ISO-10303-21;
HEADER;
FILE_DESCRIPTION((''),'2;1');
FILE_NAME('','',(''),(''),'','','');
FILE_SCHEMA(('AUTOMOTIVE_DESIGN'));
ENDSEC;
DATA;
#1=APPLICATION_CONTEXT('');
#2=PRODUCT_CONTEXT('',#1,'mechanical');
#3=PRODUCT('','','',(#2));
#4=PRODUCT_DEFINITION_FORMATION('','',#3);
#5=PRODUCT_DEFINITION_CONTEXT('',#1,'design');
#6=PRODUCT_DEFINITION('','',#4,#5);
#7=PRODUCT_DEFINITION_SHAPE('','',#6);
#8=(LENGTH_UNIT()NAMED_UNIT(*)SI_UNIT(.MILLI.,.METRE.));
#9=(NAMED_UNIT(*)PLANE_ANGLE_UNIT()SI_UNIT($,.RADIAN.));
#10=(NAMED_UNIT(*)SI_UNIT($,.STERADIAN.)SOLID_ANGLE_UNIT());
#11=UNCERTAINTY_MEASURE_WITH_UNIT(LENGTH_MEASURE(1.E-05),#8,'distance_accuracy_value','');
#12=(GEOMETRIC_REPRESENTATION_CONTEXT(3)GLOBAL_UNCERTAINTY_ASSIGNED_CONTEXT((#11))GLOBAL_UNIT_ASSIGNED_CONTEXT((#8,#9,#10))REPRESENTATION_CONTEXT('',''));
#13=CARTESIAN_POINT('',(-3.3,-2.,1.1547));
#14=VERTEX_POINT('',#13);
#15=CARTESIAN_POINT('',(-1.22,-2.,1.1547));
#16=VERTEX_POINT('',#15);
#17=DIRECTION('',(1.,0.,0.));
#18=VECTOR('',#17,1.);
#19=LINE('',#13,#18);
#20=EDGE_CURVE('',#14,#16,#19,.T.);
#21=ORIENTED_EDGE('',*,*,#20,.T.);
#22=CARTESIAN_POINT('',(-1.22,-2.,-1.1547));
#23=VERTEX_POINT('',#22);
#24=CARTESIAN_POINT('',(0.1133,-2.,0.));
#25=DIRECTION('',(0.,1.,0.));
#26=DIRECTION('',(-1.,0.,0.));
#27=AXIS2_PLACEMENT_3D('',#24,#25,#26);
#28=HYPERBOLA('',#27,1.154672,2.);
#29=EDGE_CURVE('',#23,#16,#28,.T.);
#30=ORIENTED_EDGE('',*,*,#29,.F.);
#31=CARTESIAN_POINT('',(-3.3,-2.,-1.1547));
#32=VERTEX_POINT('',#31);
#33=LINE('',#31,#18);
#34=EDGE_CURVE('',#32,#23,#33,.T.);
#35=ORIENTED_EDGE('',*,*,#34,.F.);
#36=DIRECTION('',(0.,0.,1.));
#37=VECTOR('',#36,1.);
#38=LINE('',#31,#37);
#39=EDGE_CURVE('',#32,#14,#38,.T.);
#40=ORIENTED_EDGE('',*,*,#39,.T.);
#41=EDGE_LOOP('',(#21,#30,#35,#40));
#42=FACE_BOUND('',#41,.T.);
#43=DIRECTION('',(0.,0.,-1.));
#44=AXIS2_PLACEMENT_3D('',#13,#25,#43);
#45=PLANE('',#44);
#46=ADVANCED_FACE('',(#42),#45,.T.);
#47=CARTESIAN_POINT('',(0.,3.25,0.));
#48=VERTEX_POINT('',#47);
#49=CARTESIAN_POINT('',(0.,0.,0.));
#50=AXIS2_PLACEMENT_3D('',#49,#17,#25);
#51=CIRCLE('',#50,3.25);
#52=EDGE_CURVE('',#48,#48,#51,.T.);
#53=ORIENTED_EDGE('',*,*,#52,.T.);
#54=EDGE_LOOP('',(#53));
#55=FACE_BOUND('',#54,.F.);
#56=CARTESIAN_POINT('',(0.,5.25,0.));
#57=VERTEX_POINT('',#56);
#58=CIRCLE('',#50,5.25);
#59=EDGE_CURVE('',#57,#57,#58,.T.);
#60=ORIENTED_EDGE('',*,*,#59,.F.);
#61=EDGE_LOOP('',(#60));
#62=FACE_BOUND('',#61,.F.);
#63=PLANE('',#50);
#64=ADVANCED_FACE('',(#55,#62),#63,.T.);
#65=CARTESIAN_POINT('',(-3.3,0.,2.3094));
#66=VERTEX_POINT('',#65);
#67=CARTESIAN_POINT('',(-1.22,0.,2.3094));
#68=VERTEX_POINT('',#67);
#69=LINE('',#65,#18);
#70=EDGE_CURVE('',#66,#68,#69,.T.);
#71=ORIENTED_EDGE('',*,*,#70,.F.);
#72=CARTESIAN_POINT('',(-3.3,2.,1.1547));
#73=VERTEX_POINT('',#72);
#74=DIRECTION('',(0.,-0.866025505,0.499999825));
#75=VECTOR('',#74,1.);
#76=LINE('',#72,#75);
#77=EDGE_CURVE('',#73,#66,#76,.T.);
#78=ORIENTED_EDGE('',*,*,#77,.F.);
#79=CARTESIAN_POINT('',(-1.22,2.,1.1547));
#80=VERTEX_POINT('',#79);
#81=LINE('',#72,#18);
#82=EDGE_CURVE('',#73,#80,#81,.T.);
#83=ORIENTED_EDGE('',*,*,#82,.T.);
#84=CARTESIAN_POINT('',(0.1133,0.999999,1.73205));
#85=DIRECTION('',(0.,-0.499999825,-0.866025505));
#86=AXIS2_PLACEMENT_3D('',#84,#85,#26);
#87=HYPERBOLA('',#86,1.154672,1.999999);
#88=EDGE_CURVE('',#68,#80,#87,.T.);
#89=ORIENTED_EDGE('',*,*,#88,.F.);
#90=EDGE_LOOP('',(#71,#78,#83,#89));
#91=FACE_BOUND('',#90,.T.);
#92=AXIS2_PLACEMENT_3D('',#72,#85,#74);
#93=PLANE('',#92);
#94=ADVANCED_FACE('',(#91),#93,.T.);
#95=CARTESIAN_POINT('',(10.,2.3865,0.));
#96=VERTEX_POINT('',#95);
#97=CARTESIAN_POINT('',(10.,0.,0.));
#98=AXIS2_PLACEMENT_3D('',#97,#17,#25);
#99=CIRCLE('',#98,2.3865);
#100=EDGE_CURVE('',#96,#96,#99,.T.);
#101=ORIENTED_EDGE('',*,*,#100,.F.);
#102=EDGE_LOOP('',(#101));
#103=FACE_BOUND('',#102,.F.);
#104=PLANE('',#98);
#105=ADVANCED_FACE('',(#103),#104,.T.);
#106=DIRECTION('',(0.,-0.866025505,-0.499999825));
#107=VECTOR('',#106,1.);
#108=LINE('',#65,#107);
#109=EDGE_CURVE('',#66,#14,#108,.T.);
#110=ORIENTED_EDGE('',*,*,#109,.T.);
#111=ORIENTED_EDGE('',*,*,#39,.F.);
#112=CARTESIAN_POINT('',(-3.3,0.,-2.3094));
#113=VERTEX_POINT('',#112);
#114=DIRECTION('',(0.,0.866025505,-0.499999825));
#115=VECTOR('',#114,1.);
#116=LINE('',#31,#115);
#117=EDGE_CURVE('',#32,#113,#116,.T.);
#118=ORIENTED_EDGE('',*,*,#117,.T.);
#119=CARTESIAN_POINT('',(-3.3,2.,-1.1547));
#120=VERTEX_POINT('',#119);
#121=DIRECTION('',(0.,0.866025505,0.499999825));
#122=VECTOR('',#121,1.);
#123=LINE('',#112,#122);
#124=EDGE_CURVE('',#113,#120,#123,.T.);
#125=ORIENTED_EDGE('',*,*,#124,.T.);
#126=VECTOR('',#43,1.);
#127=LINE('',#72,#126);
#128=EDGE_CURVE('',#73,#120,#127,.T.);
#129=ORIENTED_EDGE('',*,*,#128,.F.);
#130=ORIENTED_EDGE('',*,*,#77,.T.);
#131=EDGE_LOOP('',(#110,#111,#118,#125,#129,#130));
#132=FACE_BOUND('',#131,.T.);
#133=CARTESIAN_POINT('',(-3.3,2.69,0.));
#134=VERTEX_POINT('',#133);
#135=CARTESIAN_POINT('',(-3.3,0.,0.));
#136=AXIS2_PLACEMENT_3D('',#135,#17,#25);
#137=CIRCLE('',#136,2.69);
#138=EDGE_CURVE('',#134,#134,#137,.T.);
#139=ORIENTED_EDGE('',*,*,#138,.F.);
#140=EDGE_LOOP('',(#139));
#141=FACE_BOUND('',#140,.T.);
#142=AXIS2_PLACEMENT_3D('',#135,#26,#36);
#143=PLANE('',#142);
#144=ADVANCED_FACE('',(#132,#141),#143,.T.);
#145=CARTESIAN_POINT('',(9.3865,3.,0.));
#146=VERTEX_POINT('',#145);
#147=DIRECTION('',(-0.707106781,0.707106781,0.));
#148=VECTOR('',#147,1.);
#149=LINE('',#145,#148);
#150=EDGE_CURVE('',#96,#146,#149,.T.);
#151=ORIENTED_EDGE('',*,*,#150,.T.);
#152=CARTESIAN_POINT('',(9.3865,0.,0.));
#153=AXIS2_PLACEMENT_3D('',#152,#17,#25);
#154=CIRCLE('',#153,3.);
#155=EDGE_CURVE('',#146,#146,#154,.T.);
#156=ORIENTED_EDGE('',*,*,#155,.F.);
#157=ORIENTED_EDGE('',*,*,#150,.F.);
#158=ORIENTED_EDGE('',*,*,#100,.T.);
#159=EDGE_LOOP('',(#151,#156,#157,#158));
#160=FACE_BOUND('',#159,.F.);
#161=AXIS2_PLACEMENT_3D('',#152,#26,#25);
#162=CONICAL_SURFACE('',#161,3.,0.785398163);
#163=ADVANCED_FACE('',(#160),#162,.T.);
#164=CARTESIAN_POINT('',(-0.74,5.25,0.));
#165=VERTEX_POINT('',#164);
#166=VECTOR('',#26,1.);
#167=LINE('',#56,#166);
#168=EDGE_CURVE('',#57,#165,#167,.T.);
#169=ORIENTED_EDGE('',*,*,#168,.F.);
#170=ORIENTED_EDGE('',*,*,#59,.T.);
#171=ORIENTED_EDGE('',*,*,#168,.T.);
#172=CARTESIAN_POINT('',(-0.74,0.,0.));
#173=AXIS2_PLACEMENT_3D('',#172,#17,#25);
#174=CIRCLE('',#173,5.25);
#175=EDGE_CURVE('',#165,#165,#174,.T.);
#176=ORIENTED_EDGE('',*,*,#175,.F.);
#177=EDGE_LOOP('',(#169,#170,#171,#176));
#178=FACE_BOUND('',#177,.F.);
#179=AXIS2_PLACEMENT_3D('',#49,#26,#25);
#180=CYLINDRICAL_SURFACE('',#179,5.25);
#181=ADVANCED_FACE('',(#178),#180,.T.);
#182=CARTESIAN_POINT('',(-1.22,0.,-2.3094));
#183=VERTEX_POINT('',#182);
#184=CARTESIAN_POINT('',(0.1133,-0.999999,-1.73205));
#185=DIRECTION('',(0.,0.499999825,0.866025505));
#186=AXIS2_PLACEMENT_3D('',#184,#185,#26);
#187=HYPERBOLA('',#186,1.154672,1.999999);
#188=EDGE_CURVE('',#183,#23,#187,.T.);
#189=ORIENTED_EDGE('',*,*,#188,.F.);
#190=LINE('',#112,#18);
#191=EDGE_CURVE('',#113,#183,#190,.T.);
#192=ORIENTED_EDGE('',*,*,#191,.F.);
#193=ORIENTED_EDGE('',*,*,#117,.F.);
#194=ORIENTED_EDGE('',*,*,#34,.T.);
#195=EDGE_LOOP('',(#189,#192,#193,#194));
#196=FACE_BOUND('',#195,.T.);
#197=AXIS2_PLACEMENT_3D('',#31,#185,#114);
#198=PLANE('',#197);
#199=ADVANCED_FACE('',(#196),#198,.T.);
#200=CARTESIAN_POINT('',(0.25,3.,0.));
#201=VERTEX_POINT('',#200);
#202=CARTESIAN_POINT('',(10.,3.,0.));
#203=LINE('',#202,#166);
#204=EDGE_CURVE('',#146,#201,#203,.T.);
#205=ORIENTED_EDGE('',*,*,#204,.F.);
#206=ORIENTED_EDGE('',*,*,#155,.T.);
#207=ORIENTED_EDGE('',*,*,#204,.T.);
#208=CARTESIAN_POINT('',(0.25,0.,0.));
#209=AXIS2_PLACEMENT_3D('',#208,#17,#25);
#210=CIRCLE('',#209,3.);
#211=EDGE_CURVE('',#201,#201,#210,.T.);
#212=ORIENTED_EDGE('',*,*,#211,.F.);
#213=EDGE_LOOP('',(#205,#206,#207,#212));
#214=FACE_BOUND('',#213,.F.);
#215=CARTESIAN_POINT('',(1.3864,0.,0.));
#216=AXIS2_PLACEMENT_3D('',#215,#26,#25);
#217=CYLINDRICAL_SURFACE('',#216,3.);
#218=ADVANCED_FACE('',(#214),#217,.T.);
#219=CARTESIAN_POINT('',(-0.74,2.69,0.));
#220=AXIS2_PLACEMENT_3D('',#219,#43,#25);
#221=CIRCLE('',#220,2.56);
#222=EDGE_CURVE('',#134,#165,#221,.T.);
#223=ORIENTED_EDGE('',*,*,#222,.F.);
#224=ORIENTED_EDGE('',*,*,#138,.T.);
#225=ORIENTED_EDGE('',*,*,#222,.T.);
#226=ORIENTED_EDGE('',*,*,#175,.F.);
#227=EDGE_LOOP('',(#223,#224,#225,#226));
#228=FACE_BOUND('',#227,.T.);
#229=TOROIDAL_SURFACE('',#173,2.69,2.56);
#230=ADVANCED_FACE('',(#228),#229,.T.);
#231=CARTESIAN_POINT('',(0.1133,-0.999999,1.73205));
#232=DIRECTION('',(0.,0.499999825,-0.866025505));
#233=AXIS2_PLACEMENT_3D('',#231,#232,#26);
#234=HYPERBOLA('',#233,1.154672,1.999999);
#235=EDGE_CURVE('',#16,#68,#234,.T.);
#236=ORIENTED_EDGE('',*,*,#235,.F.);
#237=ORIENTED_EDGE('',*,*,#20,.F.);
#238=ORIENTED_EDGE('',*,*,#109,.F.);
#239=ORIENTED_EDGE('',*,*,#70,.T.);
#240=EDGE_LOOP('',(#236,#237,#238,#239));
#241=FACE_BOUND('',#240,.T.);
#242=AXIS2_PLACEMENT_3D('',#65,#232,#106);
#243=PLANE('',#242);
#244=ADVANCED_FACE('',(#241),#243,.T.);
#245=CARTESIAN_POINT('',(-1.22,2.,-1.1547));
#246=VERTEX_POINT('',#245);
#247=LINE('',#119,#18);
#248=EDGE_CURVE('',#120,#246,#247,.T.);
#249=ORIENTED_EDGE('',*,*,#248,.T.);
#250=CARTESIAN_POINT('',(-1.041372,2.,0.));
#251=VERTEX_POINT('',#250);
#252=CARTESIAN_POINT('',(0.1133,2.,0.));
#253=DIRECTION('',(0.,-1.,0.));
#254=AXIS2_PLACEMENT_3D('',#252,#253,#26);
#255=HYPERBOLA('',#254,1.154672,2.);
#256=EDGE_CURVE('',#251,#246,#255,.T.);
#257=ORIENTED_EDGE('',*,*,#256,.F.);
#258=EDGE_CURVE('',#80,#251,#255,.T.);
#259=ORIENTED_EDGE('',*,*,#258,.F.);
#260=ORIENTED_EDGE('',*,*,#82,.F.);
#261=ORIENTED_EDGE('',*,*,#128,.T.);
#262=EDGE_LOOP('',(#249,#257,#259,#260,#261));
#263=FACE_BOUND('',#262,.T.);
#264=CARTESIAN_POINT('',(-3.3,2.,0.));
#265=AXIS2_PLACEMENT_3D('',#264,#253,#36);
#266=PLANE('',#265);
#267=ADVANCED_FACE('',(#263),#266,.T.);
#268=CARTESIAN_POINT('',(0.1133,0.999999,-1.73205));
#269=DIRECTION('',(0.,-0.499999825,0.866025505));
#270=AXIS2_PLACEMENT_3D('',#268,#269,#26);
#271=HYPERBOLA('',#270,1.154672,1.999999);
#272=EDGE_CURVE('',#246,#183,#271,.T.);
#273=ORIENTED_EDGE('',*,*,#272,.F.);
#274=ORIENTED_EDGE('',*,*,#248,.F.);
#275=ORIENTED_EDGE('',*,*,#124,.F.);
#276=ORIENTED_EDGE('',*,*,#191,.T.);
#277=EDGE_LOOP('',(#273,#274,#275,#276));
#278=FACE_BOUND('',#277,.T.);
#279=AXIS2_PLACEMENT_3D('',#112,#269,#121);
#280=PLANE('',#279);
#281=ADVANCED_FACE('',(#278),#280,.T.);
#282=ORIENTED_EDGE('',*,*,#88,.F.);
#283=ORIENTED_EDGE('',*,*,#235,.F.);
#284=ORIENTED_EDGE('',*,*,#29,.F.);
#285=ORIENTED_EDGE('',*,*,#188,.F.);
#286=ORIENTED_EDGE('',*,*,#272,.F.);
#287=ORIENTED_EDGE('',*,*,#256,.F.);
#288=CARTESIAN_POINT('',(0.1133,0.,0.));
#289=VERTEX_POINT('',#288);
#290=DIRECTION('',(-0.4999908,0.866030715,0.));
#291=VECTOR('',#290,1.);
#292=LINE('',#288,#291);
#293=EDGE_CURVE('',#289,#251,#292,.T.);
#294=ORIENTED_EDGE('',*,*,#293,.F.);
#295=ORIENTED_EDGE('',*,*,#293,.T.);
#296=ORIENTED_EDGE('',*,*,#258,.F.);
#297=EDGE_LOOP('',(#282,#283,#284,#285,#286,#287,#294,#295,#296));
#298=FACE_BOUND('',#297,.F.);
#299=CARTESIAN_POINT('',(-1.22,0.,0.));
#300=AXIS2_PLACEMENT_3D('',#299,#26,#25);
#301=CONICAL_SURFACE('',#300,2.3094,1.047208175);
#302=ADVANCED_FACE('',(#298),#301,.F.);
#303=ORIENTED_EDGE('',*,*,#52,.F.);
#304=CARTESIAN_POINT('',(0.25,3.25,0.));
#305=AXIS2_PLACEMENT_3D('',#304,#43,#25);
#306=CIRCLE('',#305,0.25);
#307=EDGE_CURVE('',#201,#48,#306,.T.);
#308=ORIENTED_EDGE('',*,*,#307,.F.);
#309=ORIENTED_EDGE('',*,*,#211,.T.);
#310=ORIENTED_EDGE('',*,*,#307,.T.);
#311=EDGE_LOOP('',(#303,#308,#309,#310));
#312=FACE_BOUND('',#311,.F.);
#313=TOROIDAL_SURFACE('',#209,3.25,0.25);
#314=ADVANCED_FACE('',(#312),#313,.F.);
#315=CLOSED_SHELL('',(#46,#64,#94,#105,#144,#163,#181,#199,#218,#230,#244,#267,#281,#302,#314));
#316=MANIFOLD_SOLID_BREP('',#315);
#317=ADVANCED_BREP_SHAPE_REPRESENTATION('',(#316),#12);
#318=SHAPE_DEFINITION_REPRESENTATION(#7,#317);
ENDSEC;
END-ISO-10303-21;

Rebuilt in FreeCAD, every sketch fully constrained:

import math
import FreeCAD as App
import Part
import Sketcher
Q = App.Units.Quantity


def edges_at(feature, points):
    """Names of the edges that pass closest to the given points."""
    edges = feature.Shape.Edges
    near = lambda p: min(range(len(edges)), key=lambda i: edges[i].distToShape(Part.Vertex(*p))[0])
    return sorted({f"Edge{near(p) + 1}" for p in points})

doc = App.newDocument("Part")
params = doc.addObject("Spreadsheet::Sheet", "Params")
for row, (alias, value) in enumerate([
    ("sketch1_width", "10 mm"),
    ("sketch1_width2", "3.3 mm"),
    ("sketch1_width3", "2.08 mm"),
    ("sketch1_height", "3 mm"),
    ("sketch1_height2", "2.25 mm"),
    ("revolution_angle", "360 deg"),
    ("pad1_length", "2.2586 mm"),
    ("fillet_radius", "2.56 mm"),
    ("chamfer_size", "0.6135 mm"),
    ("chamfer_size2", "0.6135 mm"),
    ("fillet2_radius", "0.25 mm"),
], start=1):
    params.set(f"A{row}", alias)
    params.set(f"B{row}", "=" + value)
    params.setAlias(f"B{row}", alias)

body = doc.addObject("PartDesign::Body", "Body")

sketch1 = body.newObject("Sketcher::SketchObject", "Sketch")
sketch1.AttachmentSupport = (doc.getObject("XY_Plane"), [""])
sketch1.MapMode = "FlatFace"
sketch1.addGeometry(Part.LineSegment(App.Vector(0.1, 0, 0), App.Vector(10, 0, 0)), False)
sketch1.addGeometry(Part.LineSegment(App.Vector(10, 0, 0), App.Vector(10, 3, 0)), False)
sketch1.addGeometry(Part.LineSegment(App.Vector(10, 3, 0), App.Vector(0, 3, 0)), False)
sketch1.addGeometry(Part.LineSegment(App.Vector(0, 3, 0), App.Vector(0, 5.2, 0)), False)
sketch1.addGeometry(Part.LineSegment(App.Vector(0, 5.2, 0), App.Vector(-3.3, 5.2, 0)), False)
sketch1.addGeometry(Part.LineSegment(App.Vector(-3.3, 5.2, 0), App.Vector(-3.3, 2.3, 0)), False)
sketch1.addGeometry(Part.LineSegment(App.Vector(-3.3, 2.3, 0), App.Vector(-1.2, 2.3, 0)), False)
sketch1.addGeometry(Part.LineSegment(App.Vector(-1.2, 2.3, 0), App.Vector(0.1, 0, 0)), False)
sketch1.addConstraint(Sketcher.Constraint("Coincident", 0, 2, 1, 1))
sketch1.addConstraint(Sketcher.Constraint("Coincident", 1, 2, 2, 1))
sketch1.addConstraint(Sketcher.Constraint("Coincident", 2, 2, 3, 1))
sketch1.addConstraint(Sketcher.Constraint("Coincident", 3, 2, 4, 1))
sketch1.addConstraint(Sketcher.Constraint("Coincident", 4, 2, 5, 1))
sketch1.addConstraint(Sketcher.Constraint("Coincident", 5, 2, 6, 1))
sketch1.addConstraint(Sketcher.Constraint("Coincident", 6, 2, 7, 1))
sketch1.addConstraint(Sketcher.Constraint("Coincident", 7, 2, 0, 1))
sketch1.addConstraint(Sketcher.Constraint("Horizontal", 0))
sketch1.addConstraint(Sketcher.Constraint("Vertical", 1))
sketch1.addConstraint(Sketcher.Constraint("Horizontal", 2))
sketch1.addConstraint(Sketcher.Constraint("Vertical", 3))
sketch1.addConstraint(Sketcher.Constraint("Horizontal", 4))
sketch1.addConstraint(Sketcher.Constraint("Vertical", 5))
sketch1.addConstraint(Sketcher.Constraint("Horizontal", 6))
sketch1.addConstraint(Sketcher.Constraint("PointOnObject", 0, 2, -1))
sketch1.addConstraint(Sketcher.Constraint("PointOnObject", 2, 2, -2))
sketch1.addConstraint(Sketcher.Constraint("DistanceX", 2, 2, 2, 1, Q("10 mm")))
sketch1.addConstraint(Sketcher.Constraint("DistanceX", 4, 2, 4, 1, Q("3.3 mm")))
sketch1.addConstraint(Sketcher.Constraint("DistanceX", 6, 1, 6, 2, Q("2.08 mm")))
sketch1.addConstraint(Sketcher.Constraint("DistanceY", 1, 1, 1, 2, Q("3 mm")))
sketch1.addConstraint(Sketcher.Constraint("Angle", 7, Q("-60.0006 deg")))
sketch1.addConstraint(Sketcher.Constraint("DistanceY", 3, 1, 3, 2, Q("2.25 mm")))
sketch1.addConstraint(Sketcher.Constraint("DistanceX", 0, 1, 0, 2, Q("9.8867 mm")))
sketch1.setExpression("Constraints[17]", "Params.sketch1_width")
sketch1.setExpression("Constraints[18]", "Params.sketch1_width2")
sketch1.setExpression("Constraints[19]", "Params.sketch1_width3")
sketch1.setExpression("Constraints[20]", "Params.sketch1_height")
sketch1.setExpression("Constraints[22]", "Params.sketch1_height2")
revolution = body.newObject("PartDesign::Revolution", "Revolution")
revolution.Profile = sketch1
revolution.ReferenceAxis = (sketch1, ["H_Axis"])
revolution.setExpression("Angle", "Params.revolution_angle")

sketch2 = body.newObject("Sketcher::SketchObject", "Sketch001")
sketch2.AttachmentSupport = (doc.getObject("YZ_Plane"), [""])
sketch2.MapMode = "FlatFace"
sketch2.AttachmentOffset = App.Placement(App.Vector(0, 0, -3.3), App.Rotation())
sketch2.addGeometry(Part.LineSegment(App.Vector(2, 1.2, 0), App.Vector(0, 2.3, 0)), False)
sketch2.addGeometry(Part.ArcOfCircle(Part.Circle(App.Vector(0, 0, 0), App.Vector(0, 0, 1), 2.3), math.radians(30), math.radians(90)), False)
sketch2.addGeometry(Part.ArcOfCircle(Part.Circle(App.Vector(0, 0, 0), App.Vector(0, 0, 1), 2.3), math.radians(90), math.radians(150)), False)
sketch2.addGeometry(Part.LineSegment(App.Vector(0, 2.3, 0), App.Vector(-2, 1.2, 0)), False)
sketch2.addGeometry(Part.ArcOfCircle(Part.Circle(App.Vector(0, 0, 0), App.Vector(0, 0, 1), 2.3), math.radians(-30), math.radians(30)), False)
sketch2.addGeometry(Part.LineSegment(App.Vector(2, -1.2, 0), App.Vector(2, 1.2, 0)), False)
sketch2.addGeometry(Part.LineSegment(App.Vector(-2, 1.2, 0), App.Vector(-2, -1.2, 0)), False)
sketch2.addGeometry(Part.ArcOfCircle(Part.Circle(App.Vector(0, 0, 0), App.Vector(0, 0, 1), 2.3), math.radians(150), math.radians(210)), False)
sketch2.addGeometry(Part.LineSegment(App.Vector(-2, -1.2, 0), App.Vector(0, -2.3, 0)), False)
sketch2.addGeometry(Part.ArcOfCircle(Part.Circle(App.Vector(0, 0, 0), App.Vector(0, 0, 1), 2.3), math.radians(-150), math.radians(-90)), False)
sketch2.addGeometry(Part.ArcOfCircle(Part.Circle(App.Vector(0, 0, 0), App.Vector(0, 0, 1), 2.3), math.radians(-90), math.radians(-30)), False)
sketch2.addGeometry(Part.LineSegment(App.Vector(0, -2.3, 0), App.Vector(2, -1.2, 0)), False)
sketch2.addConstraint(Sketcher.Constraint("Coincident", 0, 1, 1, 1))
sketch2.addConstraint(Sketcher.Constraint("Coincident", 1, 2, 0, 2))
sketch2.addConstraint(Sketcher.Constraint("Coincident", 2, 1, 3, 1))
sketch2.addConstraint(Sketcher.Constraint("Coincident", 3, 2, 2, 2))
sketch2.addConstraint(Sketcher.Constraint("Coincident", 4, 1, 5, 1))
sketch2.addConstraint(Sketcher.Constraint("Coincident", 5, 2, 4, 2))
sketch2.addConstraint(Sketcher.Constraint("Coincident", 6, 1, 7, 1))
sketch2.addConstraint(Sketcher.Constraint("Coincident", 7, 2, 6, 2))
sketch2.addConstraint(Sketcher.Constraint("Coincident", 8, 1, 9, 1))
sketch2.addConstraint(Sketcher.Constraint("Coincident", 9, 2, 8, 2))
sketch2.addConstraint(Sketcher.Constraint("Coincident", 10, 1, 11, 1))
sketch2.addConstraint(Sketcher.Constraint("Coincident", 11, 2, 10, 2))
sketch2.addConstraint(Sketcher.Constraint("Vertical", 5))
sketch2.addConstraint(Sketcher.Constraint("Vertical", 6))
sketch2.addConstraint(Sketcher.Constraint("Coincident", 1, 3, -1, 1))
sketch2.addConstraint(Sketcher.Constraint("Coincident", 2, 3, -1, 1))
sketch2.addConstraint(Sketcher.Constraint("Coincident", 4, 3, -1, 1))
sketch2.addConstraint(Sketcher.Constraint("Coincident", 7, 3, -1, 1))
sketch2.addConstraint(Sketcher.Constraint("Coincident", 9, 3, -1, 1))
sketch2.addConstraint(Sketcher.Constraint("Coincident", 10, 3, -1, 1))
sketch2.addConstraint(Sketcher.Constraint("Coincident", 2, 1, 1, 2))
sketch2.addConstraint(Sketcher.Constraint("Coincident", 5, 2, 0, 1))
sketch2.addConstraint(Sketcher.Constraint("Coincident", 6, 1, 3, 2))
sketch2.addConstraint(Sketcher.Constraint("Coincident", 8, 1, 7, 2))
sketch2.addConstraint(Sketcher.Constraint("Coincident", 10, 1, 9, 2))
sketch2.addConstraint(Sketcher.Constraint("PointOnObject", 1, 2, -2))
sketch2.addConstraint(Sketcher.Constraint("PointOnObject", 9, 2, -2))
sketch2.addConstraint(Sketcher.Constraint("Parallel", 0, 8))
sketch2.addConstraint(Sketcher.Constraint("Parallel", 3, 11))
sketch2.addConstraint(Sketcher.Constraint("Angle", 0, Q("150 deg")))
sketch2.addConstraint(Sketcher.Constraint("DistanceX", -1, 1, 0, 1, Q("2 mm")))
pad1 = body.newObject("PartDesign::Pad", "Pad")
pad1.Profile = sketch2
pad1.setExpression("Length", "Params.pad1_length")
doc.recompute()

fillet = body.newObject("PartDesign::Fillet", "Fillet")
fillet.Base = (pad1, edges_at(pad1, [(-3.3, -5.25, 0)]))
fillet.setExpression("Radius", "Params.fillet_radius")
doc.recompute()

chamfer = body.newObject("PartDesign::Chamfer", "Chamfer")
chamfer.Base = (fillet, edges_at(fillet, [(10, -3, 0)]))
chamfer.ChamferType = "Two distances"
chamfer.setExpression("Size", "Params.chamfer_size")
chamfer.setExpression("Size2", "Params.chamfer_size2")
doc.recompute()

fillet2 = body.newObject("PartDesign::Fillet", "Fillet001")
fillet2.Base = (chamfer, edges_at(chamfer, [(0, -3, 0)]))
fillet2.setExpression("Radius", "Params.fillet2_radius")

doc.recompute()
